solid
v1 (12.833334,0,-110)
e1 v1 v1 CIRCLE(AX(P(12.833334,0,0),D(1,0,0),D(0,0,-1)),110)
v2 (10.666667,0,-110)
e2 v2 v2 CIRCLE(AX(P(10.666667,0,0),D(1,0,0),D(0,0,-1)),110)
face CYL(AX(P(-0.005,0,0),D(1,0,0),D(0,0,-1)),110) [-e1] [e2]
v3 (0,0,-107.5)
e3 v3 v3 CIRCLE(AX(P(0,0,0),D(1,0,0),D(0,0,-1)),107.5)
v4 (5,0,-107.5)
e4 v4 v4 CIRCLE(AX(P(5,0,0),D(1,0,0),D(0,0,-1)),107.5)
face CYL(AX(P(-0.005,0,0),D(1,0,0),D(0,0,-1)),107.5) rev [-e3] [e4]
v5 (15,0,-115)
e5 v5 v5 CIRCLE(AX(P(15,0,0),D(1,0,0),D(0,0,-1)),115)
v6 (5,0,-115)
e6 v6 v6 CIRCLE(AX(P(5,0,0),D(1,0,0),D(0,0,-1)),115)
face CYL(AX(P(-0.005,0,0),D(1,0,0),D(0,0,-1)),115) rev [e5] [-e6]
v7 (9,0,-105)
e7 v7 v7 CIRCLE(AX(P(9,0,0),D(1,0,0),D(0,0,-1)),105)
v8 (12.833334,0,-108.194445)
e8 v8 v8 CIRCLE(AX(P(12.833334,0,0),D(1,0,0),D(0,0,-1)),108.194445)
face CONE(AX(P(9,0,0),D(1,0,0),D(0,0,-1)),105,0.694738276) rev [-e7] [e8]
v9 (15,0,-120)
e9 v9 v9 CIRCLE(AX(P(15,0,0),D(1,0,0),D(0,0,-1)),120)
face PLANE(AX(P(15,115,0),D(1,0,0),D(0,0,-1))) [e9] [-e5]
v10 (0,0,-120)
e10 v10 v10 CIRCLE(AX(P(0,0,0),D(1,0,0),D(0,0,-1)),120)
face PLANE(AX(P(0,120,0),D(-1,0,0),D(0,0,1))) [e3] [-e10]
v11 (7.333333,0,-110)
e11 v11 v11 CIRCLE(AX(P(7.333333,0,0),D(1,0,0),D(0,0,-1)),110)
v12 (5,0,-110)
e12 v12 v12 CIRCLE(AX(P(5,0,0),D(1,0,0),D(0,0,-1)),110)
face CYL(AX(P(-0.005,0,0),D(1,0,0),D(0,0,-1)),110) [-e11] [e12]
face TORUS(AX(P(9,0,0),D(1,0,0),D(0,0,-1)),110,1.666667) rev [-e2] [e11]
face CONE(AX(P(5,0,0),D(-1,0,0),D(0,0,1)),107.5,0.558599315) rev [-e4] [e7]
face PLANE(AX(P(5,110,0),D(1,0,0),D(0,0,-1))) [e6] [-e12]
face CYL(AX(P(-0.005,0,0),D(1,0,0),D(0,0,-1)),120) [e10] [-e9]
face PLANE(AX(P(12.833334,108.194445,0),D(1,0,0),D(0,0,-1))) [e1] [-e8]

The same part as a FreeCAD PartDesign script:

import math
import FreeCAD as App
import Part
import Sketcher
Q = App.Units.Quantity

doc = App.newDocument("Part")
body = doc.addObject("PartDesign::Body", "Body")

sketch1 = doc.addObject("Sketcher::SketchObject", "Sketch")
body.addObject(sketch1)
sketch1.AttachmentSupport = (doc.XY_Plane, [""])
sketch1.MapMode = "FlatFace"
sketch1.addGeometry(Part.LineSegment(App.Vector(15, 120, 0), App.Vector(0, 120, 0)), False)
sketch1.addGeometry(Part.LineSegment(App.Vector(0, 120, 0), App.Vector(0, 107.5, 0)), False)
sketch1.addGeometry(Part.LineSegment(App.Vector(0, 107.5, 0), App.Vector(5, 107.5, 0)), False)
sketch1.addGeometry(Part.LineSegment(App.Vector(5, 107.5, 0), App.Vector(9, 105, 0)), False)
sketch1.addGeometry(Part.LineSegment(App.Vector(9, 105, 0), App.Vector(12.833334, 108.194445, 0)), False)
sketch1.addGeometry(Part.LineSegment(App.Vector(12.833334, 108.194445, 0), App.Vector(12.833334, 110, 0)), False)
sketch1.addGeometry(Part.LineSegment(App.Vector(12.833334, 110, 0), App.Vector(10.666667, 110, 0)), False)
sketch1.addGeometry(Part.ArcOfCircle(Part.Circle(App.Vector(9, 110, 0), App.Vector(0, 0, 1), 1.666667), math.radians(180), math.radians(360)), False)
sketch1.addGeometry(Part.LineSegment(App.Vector(7.333333, 110, 0), App.Vector(5, 110, 0)), False)
sketch1.addGeometry(Part.LineSegment(App.Vector(5, 110, 0), App.Vector(5, 115, 0)), False)
sketch1.addGeometry(Part.LineSegment(App.Vector(5, 115, 0), App.Vector(15, 115, 0)), False)
sketch1.addGeometry(Part.LineSegment(App.Vector(15, 115, 0), App.Vector(15, 120, 0)), False)
sketch1.addConstraint(Sketcher.Constraint("Coincident", 0, 2, 1, 1))
sketch1.addConstraint(Sketcher.Constraint("Coincident", 1, 2, 2, 1))
sketch1.addConstraint(Sketcher.Constraint("Coincident", 2, 2, 3, 1))
sketch1.addConstraint(Sketcher.Constraint("Coincident", 3, 2, 4, 1))
sketch1.addConstraint(Sketcher.Constraint("Coincident", 4, 2, 5, 1))
sketch1.addConstraint(Sketcher.Constraint("Coincident", 5, 2, 6, 1))
sketch1.addConstraint(Sketcher.Constraint("Coincident", 6, 2, 7, 2))
sketch1.addConstraint(Sketcher.Constraint("Coincident", 7, 1, 8, 1))
sketch1.addConstraint(Sketcher.Constraint("Coincident", 8, 2, 9, 1))
sketch1.addConstraint(Sketcher.Constraint("Coincident", 9, 2, 10, 1))
sketch1.addConstraint(Sketcher.Constraint("Coincident", 10, 2, 11, 1))
sketch1.addConstraint(Sketcher.Constraint("Coincident", 11, 2, 0, 1))
sketch1.addConstraint(Sketcher.Constraint("Horizontal", 0))
sketch1.addConstraint(Sketcher.Constraint("Vertical", 1))
sketch1.addConstraint(Sketcher.Constraint("Horizontal", 2))
sketch1.addConstraint(Sketcher.Constraint("Vertical", 5))
sketch1.addConstraint(Sketcher.Constraint("Horizontal", 6))
sketch1.addConstraint(Sketcher.Constraint("Horizontal", 8))
sketch1.addConstraint(Sketcher.Constraint("Vertical", 9))
sketch1.addConstraint(Sketcher.Constraint("Horizontal", 10))
sketch1.addConstraint(Sketcher.Constraint("Vertical", 11))
sketch1.addConstraint(Sketcher.Constraint("PointOnObject", 0, 2, -2))
sketch1.addConstraint(Sketcher.Constraint("Horizontal", 7, 3, 5, 2))
sketch1.addConstraint(Sketcher.Constraint("Horizontal", 6, 2, 7, 1))
sketch1.addConstraint(Sketcher.Constraint("Vertical", 7, 3, 3, 2))
sketch1.addConstraint(Sketcher.Constraint("Vertical", 2, 2, 8, 2))
sketch1.addConstraint(Sketcher.Constraint("Equal", 2, 9))
sketch1.addConstraint(Sketcher.Constraint("Equal", 9, 11))
sketch1.addConstraint(Sketcher.Constraint("DistanceX", 0, 2, 0, 1, Q("15 mm")))
sketch1.addConstraint(Sketcher.Constraint("DistanceX", 2, 1, 2, 2, Q("5 mm")))
sketch1.addConstraint(Sketcher.Constraint("DistanceY", 1, 2, 1, 1, Q("12.5 mm")))
sketch1.addConstraint(Sketcher.Constraint("DistanceX", -1, 1, 7, 3, Q("9 mm")))
sketch1.addConstraint(Sketcher.Constraint("DistanceY", -1, 1, 7, 3, Q("110 mm")))
sketch1.addConstraint(Sketcher.Constraint("DistanceY", -1, 1, 3, 2, Q("105 mm")))
sketch1.addConstraint(Sketcher.Constraint("DistanceX", 7, 1, 5, 2, Q("5.500001 mm")))
sketch1.addConstraint(Sketcher.Constraint("Radius", 7, Q("1.666667 mm")))
sketch1.addConstraint(Sketcher.Constraint("Distance", 4, Q("4.989882 mm")))
revolution = doc.addObject("PartDesign::Revolution", "Revolution")
body.addObject(revolution)
revolution.Profile = sketch1
revolution.ReferenceAxis = (sketch1, ["H_Axis"])
revolution.Angle = 360

doc.recompute()
